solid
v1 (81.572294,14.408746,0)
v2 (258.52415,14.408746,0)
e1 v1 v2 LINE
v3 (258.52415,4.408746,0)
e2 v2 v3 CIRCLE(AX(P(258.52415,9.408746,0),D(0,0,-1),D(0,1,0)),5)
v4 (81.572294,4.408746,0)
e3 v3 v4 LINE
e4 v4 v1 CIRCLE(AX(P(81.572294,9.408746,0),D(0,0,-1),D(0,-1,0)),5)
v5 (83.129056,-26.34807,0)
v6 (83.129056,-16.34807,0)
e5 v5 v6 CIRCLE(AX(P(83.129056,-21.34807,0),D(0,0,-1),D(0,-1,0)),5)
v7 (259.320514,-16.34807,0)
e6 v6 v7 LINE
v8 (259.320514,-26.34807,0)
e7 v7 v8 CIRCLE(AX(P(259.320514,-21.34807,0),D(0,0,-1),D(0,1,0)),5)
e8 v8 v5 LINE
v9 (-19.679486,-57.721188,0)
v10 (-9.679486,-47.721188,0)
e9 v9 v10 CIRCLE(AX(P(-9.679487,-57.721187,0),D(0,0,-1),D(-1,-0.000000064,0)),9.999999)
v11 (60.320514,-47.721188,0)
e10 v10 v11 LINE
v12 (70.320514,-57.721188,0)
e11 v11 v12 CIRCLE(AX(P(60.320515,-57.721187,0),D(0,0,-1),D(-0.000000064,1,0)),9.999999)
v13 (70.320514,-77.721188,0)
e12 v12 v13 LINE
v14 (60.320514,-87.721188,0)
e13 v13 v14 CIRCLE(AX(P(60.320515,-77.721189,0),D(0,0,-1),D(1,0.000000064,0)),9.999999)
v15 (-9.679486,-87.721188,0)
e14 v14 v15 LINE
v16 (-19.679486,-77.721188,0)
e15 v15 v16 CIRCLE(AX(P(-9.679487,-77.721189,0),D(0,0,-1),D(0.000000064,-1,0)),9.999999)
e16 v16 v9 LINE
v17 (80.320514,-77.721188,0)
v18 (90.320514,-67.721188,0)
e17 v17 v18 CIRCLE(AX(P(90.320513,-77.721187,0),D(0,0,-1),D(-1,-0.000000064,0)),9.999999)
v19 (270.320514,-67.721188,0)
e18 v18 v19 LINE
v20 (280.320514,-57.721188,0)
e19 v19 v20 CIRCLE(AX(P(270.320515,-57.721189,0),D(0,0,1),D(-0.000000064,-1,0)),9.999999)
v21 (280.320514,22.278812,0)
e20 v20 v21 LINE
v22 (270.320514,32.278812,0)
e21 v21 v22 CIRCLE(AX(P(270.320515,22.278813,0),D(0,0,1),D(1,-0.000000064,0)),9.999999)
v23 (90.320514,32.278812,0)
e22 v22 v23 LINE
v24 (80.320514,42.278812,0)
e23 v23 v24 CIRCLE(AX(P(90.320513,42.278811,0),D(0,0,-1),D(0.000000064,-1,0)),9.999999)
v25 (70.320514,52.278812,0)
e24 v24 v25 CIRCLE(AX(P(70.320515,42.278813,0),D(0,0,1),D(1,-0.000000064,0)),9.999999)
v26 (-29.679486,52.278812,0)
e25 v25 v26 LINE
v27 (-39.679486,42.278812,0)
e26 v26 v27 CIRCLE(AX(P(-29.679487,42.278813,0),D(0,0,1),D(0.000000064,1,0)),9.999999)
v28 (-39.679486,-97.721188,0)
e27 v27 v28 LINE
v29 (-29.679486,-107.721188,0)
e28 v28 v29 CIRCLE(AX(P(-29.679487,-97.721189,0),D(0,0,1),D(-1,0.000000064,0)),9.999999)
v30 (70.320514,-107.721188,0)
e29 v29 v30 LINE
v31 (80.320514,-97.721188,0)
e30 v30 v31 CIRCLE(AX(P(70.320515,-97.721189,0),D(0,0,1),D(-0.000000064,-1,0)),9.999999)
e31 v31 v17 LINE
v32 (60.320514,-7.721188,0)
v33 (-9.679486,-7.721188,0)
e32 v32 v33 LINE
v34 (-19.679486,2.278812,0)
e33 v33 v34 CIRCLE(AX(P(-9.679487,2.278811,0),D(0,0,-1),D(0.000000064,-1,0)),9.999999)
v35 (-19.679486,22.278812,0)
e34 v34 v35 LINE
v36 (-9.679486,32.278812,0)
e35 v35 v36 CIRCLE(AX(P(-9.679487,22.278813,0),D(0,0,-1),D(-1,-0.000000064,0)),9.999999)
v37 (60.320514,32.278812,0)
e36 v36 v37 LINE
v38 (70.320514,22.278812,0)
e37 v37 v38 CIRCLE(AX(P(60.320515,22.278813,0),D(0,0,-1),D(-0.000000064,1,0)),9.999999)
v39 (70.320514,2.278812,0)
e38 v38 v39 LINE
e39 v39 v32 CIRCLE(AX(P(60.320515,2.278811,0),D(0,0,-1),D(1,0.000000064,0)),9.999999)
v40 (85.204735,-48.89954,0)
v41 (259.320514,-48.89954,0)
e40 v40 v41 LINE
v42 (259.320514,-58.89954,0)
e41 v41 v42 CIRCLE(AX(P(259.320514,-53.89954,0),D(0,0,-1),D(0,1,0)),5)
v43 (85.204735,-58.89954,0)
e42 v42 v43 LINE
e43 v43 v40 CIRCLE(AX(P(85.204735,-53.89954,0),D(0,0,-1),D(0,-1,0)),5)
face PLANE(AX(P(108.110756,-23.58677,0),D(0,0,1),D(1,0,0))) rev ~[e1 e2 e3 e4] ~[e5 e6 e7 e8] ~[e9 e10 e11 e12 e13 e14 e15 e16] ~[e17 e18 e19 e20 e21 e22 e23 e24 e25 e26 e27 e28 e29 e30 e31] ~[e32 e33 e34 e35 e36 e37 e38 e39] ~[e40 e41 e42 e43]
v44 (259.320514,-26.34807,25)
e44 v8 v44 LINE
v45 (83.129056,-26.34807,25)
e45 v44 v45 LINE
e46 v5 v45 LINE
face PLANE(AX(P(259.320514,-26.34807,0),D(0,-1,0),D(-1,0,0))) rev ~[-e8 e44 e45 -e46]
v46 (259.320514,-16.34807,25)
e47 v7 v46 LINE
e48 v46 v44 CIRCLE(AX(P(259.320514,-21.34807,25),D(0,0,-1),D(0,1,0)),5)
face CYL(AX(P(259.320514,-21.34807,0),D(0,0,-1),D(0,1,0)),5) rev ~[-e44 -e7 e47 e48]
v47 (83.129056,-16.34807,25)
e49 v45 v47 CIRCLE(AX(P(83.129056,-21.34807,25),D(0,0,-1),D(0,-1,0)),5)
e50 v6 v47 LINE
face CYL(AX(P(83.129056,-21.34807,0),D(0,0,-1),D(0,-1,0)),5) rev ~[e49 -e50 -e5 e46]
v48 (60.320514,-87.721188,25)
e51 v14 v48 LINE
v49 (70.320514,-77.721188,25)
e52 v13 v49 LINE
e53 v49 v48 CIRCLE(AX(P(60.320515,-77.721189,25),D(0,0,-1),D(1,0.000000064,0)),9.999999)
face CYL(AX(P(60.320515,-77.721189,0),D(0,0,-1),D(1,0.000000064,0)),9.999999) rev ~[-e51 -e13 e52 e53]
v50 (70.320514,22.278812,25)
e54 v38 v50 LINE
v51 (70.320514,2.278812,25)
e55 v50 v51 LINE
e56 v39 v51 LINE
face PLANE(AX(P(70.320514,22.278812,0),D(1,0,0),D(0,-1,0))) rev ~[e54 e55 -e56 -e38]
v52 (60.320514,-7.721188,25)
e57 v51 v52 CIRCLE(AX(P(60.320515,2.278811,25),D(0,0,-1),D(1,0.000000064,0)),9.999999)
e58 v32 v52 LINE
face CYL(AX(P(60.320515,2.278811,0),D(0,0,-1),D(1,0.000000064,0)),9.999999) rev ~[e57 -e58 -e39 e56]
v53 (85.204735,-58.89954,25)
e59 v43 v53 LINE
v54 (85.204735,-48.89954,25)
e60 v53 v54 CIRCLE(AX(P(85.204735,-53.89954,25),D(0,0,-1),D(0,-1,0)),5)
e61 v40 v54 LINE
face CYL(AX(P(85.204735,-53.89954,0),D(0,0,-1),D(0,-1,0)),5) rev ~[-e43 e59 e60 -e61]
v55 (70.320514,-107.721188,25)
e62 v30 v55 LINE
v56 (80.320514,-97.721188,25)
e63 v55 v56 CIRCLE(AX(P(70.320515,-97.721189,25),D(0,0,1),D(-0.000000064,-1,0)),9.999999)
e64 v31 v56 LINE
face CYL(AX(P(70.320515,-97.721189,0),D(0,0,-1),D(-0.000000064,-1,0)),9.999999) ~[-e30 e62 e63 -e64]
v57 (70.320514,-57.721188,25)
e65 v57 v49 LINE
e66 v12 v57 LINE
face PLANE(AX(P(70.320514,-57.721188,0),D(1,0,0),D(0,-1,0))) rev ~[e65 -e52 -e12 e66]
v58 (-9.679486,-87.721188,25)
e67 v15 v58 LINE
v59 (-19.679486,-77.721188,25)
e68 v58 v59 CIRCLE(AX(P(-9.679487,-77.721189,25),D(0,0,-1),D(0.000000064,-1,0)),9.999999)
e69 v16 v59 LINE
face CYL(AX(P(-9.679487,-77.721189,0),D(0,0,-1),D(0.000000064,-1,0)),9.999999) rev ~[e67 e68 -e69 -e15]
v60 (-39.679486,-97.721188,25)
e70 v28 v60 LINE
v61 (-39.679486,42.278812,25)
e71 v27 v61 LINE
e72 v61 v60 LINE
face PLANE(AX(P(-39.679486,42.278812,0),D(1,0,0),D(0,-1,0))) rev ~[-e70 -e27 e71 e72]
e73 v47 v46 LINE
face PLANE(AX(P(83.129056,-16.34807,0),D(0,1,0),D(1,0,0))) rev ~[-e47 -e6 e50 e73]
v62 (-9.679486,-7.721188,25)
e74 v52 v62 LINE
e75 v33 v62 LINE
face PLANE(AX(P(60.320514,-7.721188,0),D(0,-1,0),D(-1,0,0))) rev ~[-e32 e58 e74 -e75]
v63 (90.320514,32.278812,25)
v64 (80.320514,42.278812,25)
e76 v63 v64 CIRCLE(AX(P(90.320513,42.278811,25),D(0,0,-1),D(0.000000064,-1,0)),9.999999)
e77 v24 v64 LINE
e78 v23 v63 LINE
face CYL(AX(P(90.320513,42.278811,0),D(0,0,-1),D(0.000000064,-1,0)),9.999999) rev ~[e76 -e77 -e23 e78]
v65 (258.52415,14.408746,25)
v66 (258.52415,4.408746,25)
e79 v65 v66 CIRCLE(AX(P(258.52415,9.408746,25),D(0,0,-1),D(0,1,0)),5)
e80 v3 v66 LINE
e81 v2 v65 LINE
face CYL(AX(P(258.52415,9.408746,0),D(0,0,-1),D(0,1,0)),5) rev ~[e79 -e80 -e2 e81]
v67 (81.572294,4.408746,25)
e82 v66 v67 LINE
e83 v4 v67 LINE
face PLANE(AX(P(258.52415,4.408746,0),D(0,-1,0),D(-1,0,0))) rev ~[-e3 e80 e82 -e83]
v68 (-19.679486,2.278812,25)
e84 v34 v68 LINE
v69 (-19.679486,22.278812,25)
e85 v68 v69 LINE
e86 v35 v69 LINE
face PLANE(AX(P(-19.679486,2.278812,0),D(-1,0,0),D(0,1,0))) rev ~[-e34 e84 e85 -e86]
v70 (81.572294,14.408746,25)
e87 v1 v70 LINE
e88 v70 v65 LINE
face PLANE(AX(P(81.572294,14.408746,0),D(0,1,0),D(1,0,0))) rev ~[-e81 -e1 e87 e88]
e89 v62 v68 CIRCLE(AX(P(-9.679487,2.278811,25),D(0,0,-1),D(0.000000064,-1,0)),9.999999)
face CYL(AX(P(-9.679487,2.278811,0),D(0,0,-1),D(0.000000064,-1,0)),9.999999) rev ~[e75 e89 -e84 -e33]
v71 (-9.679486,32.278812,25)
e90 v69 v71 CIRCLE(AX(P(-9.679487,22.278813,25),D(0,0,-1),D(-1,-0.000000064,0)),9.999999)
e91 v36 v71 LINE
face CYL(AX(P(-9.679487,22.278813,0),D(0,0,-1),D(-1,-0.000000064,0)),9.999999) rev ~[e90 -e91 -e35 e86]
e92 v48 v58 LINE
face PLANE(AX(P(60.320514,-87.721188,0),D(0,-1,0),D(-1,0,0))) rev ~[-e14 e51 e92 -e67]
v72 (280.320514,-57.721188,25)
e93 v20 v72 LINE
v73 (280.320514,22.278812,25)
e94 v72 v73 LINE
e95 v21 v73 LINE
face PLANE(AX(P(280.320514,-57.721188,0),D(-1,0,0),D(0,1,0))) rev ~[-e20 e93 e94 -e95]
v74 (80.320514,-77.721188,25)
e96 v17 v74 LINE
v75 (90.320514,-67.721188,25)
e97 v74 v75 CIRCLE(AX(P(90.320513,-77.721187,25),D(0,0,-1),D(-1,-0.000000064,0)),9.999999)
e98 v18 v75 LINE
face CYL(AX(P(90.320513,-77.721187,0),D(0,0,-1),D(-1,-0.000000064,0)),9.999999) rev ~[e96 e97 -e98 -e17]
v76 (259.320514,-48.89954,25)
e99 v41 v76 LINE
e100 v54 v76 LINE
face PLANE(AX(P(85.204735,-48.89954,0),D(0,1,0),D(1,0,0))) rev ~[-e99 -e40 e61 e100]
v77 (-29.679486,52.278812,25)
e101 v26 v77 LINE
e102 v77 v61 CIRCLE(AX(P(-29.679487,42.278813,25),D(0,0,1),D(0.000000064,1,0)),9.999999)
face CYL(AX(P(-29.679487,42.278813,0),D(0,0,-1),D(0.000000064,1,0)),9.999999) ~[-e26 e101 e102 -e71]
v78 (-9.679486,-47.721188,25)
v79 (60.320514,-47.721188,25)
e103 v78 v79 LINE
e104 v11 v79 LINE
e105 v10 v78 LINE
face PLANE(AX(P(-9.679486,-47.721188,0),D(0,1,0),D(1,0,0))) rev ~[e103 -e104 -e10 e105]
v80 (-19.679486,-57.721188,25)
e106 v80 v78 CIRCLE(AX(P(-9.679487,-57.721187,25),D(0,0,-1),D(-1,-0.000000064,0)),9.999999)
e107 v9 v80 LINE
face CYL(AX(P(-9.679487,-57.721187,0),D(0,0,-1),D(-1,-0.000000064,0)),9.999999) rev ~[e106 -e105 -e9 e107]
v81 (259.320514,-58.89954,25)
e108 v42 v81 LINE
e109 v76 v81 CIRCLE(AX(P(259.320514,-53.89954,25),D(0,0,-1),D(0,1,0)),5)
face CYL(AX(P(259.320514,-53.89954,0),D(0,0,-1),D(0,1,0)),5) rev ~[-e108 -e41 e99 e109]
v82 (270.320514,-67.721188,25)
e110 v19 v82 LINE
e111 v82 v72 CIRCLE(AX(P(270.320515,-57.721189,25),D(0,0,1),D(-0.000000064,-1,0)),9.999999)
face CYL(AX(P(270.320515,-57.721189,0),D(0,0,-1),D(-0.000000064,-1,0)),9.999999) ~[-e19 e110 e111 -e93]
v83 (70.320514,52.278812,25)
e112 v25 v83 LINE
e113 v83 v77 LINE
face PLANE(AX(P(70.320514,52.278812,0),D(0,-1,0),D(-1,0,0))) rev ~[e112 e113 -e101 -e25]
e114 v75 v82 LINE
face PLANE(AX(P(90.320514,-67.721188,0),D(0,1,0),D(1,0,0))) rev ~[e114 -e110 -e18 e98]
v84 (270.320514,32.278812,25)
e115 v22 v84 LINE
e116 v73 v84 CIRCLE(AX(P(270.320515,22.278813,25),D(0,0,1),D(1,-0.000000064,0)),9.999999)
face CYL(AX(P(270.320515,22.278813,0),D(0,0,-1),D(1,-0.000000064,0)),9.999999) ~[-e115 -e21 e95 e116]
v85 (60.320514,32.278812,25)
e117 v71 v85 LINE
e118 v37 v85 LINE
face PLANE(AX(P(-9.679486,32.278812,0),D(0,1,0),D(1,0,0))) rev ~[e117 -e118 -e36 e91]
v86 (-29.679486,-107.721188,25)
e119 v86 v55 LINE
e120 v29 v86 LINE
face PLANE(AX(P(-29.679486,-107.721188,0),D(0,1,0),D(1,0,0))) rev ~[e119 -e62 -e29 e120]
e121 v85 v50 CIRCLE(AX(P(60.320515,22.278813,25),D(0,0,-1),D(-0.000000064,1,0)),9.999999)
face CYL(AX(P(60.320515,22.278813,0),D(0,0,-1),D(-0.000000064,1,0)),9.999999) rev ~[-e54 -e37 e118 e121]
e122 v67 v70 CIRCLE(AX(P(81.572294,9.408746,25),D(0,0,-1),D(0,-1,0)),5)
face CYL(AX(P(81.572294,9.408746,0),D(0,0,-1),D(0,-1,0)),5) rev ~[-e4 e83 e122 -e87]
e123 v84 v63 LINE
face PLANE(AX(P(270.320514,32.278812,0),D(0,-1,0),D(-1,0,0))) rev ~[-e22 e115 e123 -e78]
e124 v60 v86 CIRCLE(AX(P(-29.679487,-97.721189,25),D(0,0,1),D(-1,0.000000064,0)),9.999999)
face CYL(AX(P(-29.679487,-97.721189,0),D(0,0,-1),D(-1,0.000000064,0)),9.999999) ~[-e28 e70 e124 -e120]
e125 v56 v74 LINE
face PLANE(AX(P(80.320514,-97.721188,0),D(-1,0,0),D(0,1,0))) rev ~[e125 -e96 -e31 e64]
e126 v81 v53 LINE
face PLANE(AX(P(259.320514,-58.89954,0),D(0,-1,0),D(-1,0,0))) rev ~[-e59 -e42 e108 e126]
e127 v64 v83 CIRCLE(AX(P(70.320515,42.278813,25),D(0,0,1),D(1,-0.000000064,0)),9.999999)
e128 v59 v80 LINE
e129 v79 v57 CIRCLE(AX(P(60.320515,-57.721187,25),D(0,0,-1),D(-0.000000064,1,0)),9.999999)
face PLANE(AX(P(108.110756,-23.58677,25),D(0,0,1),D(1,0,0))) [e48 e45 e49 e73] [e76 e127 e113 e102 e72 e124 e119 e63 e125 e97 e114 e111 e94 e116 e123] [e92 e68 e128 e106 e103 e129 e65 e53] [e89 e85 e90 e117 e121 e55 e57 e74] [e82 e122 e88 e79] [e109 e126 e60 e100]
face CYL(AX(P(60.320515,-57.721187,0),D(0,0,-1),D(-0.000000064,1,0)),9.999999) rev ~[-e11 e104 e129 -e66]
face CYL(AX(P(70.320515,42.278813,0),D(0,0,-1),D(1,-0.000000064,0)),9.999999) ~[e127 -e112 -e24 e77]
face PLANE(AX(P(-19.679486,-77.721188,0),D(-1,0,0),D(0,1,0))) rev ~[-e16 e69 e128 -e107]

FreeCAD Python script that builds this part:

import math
import FreeCAD as App
import Part
import Sketcher

V = App.Vector

doc = App.newDocument("Part")
body = doc.addObject("PartDesign::Body", "Body")

# Sketch on XY plane
sketch1 = body.newObject("Sketcher::SketchObject", "Sketch")
sketch1.AttachmentSupport = (doc.getObject("XY_Plane"), [""])
sketch1.MapMode = "FlatFace"
sketch1.addGeometry([
    Part.ArcOfCircle(Part.Circle(V(-30, 42, 0), V(0, 0, 1), 10), math.radians(90), math.radians(180)),  # 0
    Part.LineSegment(V(-40, 42, 0), V(-40, -98, 0)),  # 1
    Part.ArcOfCircle(Part.Circle(V(-30, -98, 0), V(0, 0, 1), 10), math.radians(180), math.radians(270)),  # 2
    Part.LineSegment(V(-30, -108, 0), V(70, -108, 0)),  # 3
    Part.ArcOfCircle(Part.Circle(V(70, -98, 0), V(0, 0, 1), 10), math.radians(-90), math.radians(0)),  # 4
    Part.LineSegment(V(80, -98, 0), V(80, -78, 0)),  # 5
    Part.ArcOfCircle(Part.Circle(V(90, -78, 0), V(0, 0, 1), 10), math.radians(90), math.radians(180)),  # 6
    Part.LineSegment(V(90, -68, 0), V(270, -68, 0)),  # 7
    Part.ArcOfCircle(Part.Circle(V(270, -58, 0), V(0, 0, 1), 10), math.radians(-90), math.radians(0)),  # 8
    Part.LineSegment(V(280, -58, 0), V(280, 22, 0)),  # 9
    Part.ArcOfCircle(Part.Circle(V(270, 22, 0), V(0, 0, 1), 10), math.radians(0), math.radians(90)),  # 10
    Part.LineSegment(V(270, 32, 0), V(90, 32, 0)),  # 11
    Part.ArcOfCircle(Part.Circle(V(90, 42, 0), V(0, 0, 1), 10), math.radians(180), math.radians(270)),  # 12
    Part.ArcOfCircle(Part.Circle(V(70, 42, 0), V(0, 0, 1), 10), math.radians(0), math.radians(90)),  # 13
    Part.LineSegment(V(70, 52, 0), V(-30, 52, 0)),  # 14
    Part.LineSegment(V(-20, -78, 0), V(-20, -58, 0)),  # 15
    Part.ArcOfCircle(Part.Circle(V(-10, -58, 0), V(0, 0, 1), 10), math.radians(90), math.radians(180)),  # 16
    Part.LineSegment(V(-10, -48, 0), V(60, -48, 0)),  # 17
    Part.ArcOfCircle(Part.Circle(V(60, -58, 0), V(0, 0, 1), 10), math.radians(0), math.radians(90)),  # 18
    Part.LineSegment(V(70, -58, 0), V(70, -78, 0)),  # 19
    Part.ArcOfCircle(Part.Circle(V(60, -78, 0), V(0, 0, 1), 10), math.radians(-90), math.radians(0)),  # 20
    Part.LineSegment(V(60, -88, 0), V(-10, -88, 0)),  # 21
    Part.ArcOfCircle(Part.Circle(V(-10, -78, 0), V(0, 0, 1), 10), math.radians(180), math.radians(270)),  # 22
    Part.ArcOfCircle(Part.Circle(V(259, -54, 0), V(0, 0, 1), 5), math.radians(-90), math.radians(90)),  # 23
    Part.LineSegment(V(259, -59, 0), V(85, -59, 0)),  # 24
    Part.ArcOfCircle(Part.Circle(V(85, -54, 0), V(0, 0, 1), 5), math.radians(90), math.radians(270)),  # 25
    Part.LineSegment(V(85, -49, 0), V(259, -49, 0)),  # 26
    Part.LineSegment(V(-20, 2, 0), V(-20, 22, 0)),  # 27
    Part.ArcOfCircle(Part.Circle(V(-10, 22, 0), V(0, 0, 1), 10), math.radians(90), math.radians(180)),  # 28
    Part.LineSegment(V(-10, 32, 0), V(60, 32, 0)),  # 29
    Part.ArcOfCircle(Part.Circle(V(60, 22, 0), V(0, 0, 1), 10), math.radians(0), math.radians(90)),  # 30
    Part.LineSegment(V(70, 22, 0), V(70, 2, 0)),  # 31
    Part.ArcOfCircle(Part.Circle(V(60, 2, 0), V(0, 0, 1), 10), math.radians(-90), math.radians(0)),  # 32
    Part.LineSegment(V(60, -8, 0), V(-10, -8, 0)),  # 33
    Part.ArcOfCircle(Part.Circle(V(-10, 2, 0), V(0, 0, 1), 10), math.radians(180), math.radians(270)),  # 34
    Part.ArcOfCircle(Part.Circle(V(259, -21, 0), V(0, 0, 1), 5), math.radians(-90), math.radians(90)),  # 35
    Part.LineSegment(V(259, -26, 0), V(83, -26, 0)),  # 36
    Part.ArcOfCircle(Part.Circle(V(83, -21, 0), V(0, 0, 1), 5), math.radians(90), math.radians(270)),  # 37
    Part.LineSegment(V(83, -16, 0), V(259, -16, 0)),  # 38
    Part.ArcOfCircle(Part.Circle(V(259, 9, 0), V(0, 0, 1), 5), math.radians(-90), math.radians(90)),  # 39
    Part.LineSegment(V(259, 4, 0), V(82, 4, 0)),  # 40
    Part.ArcOfCircle(Part.Circle(V(82, 9, 0), V(0, 0, 1), 5), math.radians(90), math.radians(270)),  # 41
    Part.LineSegment(V(82, 14, 0), V(259, 14, 0)),  # 42
], False)
sketch1.addConstraint([
    Sketcher.Constraint("Tangent", 0, 2, 1, 1),
    Sketcher.Constraint("Tangent", 1, 2, 2, 1),
    Sketcher.Constraint("Tangent", 2, 2, 3, 1),
    Sketcher.Constraint("Tangent", 3, 2, 4, 1),
    Sketcher.Constraint("Tangent", 4, 2, 5, 1),
    Sketcher.Constraint("Tangent", 5, 2, 6, 2),
    Sketcher.Constraint("Tangent", 6, 1, 7, 1),
    Sketcher.Constraint("Tangent", 7, 2, 8, 1),
    Sketcher.Constraint("Tangent", 8, 2, 9, 1),
    Sketcher.Constraint("Tangent", 9, 2, 10, 1),
    Sketcher.Constraint("Tangent", 10, 2, 11, 1),
    Sketcher.Constraint("Tangent", 11, 2, 12, 2),
    Sketcher.Constraint("Tangent", 12, 1, 13, 1),
    Sketcher.Constraint("Tangent", 13, 2, 14, 1),
    Sketcher.Constraint("Tangent", 14, 2, 0, 1),
    Sketcher.Constraint("Tangent", 15, 2, 16, 2),
    Sketcher.Constraint("Tangent", 16, 1, 17, 1),
    Sketcher.Constraint("Tangent", 17, 2, 18, 2),
    Sketcher.Constraint("Tangent", 18, 1, 19, 1),
    Sketcher.Constraint("Tangent", 19, 2, 20, 2),
    Sketcher.Constraint("Tangent", 20, 1, 21, 1),
    Sketcher.Constraint("Tangent", 21, 2, 22, 2),
    Sketcher.Constraint("Tangent", 22, 1, 15, 1),
    Sketcher.Constraint("Tangent", 23, 1, 24, 1),
    Sketcher.Constraint("Tangent", 24, 2, 25, 2),
    Sketcher.Constraint("Tangent", 25, 1, 26, 1),
    Sketcher.Constraint("Tangent", 26, 2, 23, 2),
    Sketcher.Constraint("Tangent", 27, 2, 28, 2),
    Sketcher.Constraint("Tangent", 28, 1, 29, 1),
    Sketcher.Constraint("Tangent", 29, 2, 30, 2),
    Sketcher.Constraint("Tangent", 30, 1, 31, 1),
    Sketcher.Constraint("Tangent", 31, 2, 32, 2),
    Sketcher.Constraint("Tangent", 32, 1, 33, 1),
    Sketcher.Constraint("Tangent", 33, 2, 34, 2),
    Sketcher.Constraint("Tangent", 34, 1, 27, 1),
    Sketcher.Constraint("Tangent", 35, 1, 36, 1),
    Sketcher.Constraint("Tangent", 36, 2, 37, 2),
    Sketcher.Constraint("Tangent", 37, 1, 38, 1),
    Sketcher.Constraint("Tangent", 38, 2, 35, 2),
    Sketcher.Constraint("Tangent", 39, 1, 40, 1),
    Sketcher.Constraint("Tangent", 40, 2, 41, 2),
    Sketcher.Constraint("Tangent", 41, 1, 42, 1),
    Sketcher.Constraint("Tangent", 42, 2, 39, 2),
    Sketcher.Constraint("Vertical", 1),
    Sketcher.Constraint("Horizontal", 3),
    Sketcher.Constraint("Vertical", 5),
    Sketcher.Constraint("Horizontal", 7),
    Sketcher.Constraint("Vertical", 9),
    Sketcher.Constraint("Horizontal", 11),
    Sketcher.Constraint("Horizontal", 14),
    Sketcher.Constraint("Vertical", 15),
    Sketcher.Constraint("Horizontal", 17),
    Sketcher.Constraint("Vertical", 19),
    Sketcher.Constraint("Horizontal", 21),
    Sketcher.Constraint("Horizontal", 24),
    Sketcher.Constraint("Horizontal", 26),
    Sketcher.Constraint("Vertical", 27),
    Sketcher.Constraint("Horizontal", 29),
    Sketcher.Constraint("Vertical", 31),
    Sketcher.Constraint("Horizontal", 33),
    Sketcher.Constraint("Horizontal", 36),
    Sketcher.Constraint("Horizontal", 38),
    Sketcher.Constraint("Horizontal", 40),
    Sketcher.Constraint("Horizontal", 42),
    Sketcher.Constraint("Equal", 0, 2),
    Sketcher.Constraint("Equal", 2, 4),
    Sketcher.Constraint("Equal", 4, 6),
    Sketcher.Constraint("Equal", 6, 8),
    Sketcher.Constraint("Equal", 8, 10),
    Sketcher.Constraint("Equal", 10, 12),
    Sketcher.Constraint("Equal", 12, 13),
    Sketcher.Constraint("Equal", 13, 16),
    Sketcher.Constraint("Equal", 16, 18),
    Sketcher.Constraint("Equal", 18, 20),
    Sketcher.Constraint("Equal", 20, 22),
    Sketcher.Constraint("Equal", 22, 28),
    Sketcher.Constraint("Equal", 28, 30),
    Sketcher.Constraint("Equal", 30, 32),
    Sketcher.Constraint("Equal", 32, 34),
    Sketcher.Constraint("Equal", 25, 35),
    Sketcher.Constraint("Equal", 37, 39),
    Sketcher.Constraint("Horizontal", 0, 3, 12, 3),
    Sketcher.Constraint("Horizontal", 8, 3, 16, 3),
    Sketcher.Constraint("Horizontal", 6, 3, 20, 3),
    Sketcher.Constraint("Horizontal", 10, 3, 28, 3),
    Sketcher.Constraint("Vertical", 6, 3, 12, 3),
    Sketcher.Constraint("Vertical", 22, 3, 28, 3),
    Sketcher.Constraint("Vertical", 20, 3, 30, 3),
    Sketcher.Constraint("Vertical", 23, 3, 35, 3),
    Sketcher.Constraint("Vertical", 13, 2, 18, 1),
    Sketcher.Constraint("Equal", 5, 15),
    Sketcher.Constraint("Equal", 19, 27),
    Sketcher.Constraint("Radius", 0, 9.999999),
    Sketcher.Constraint("Radius", 23, 5.0),
    Sketcher.Constraint("DistanceX", 3, 1, 3, 2, 100.0),
    Sketcher.Constraint("DistanceX", 7, 1, 7, 2, 180.0),
    Sketcher.Constraint("DistanceX", 17, 1, 17, 2, 70.0),
    Sketcher.Constraint("DistanceY", 1, 2, 1, 1, 140.0),
    Sketcher.Constraint("DistanceX", 24, 2, 24, 1, 174.115779),
    Sketcher.Constraint("DistanceX", 36, 2, 36, 1, 176.191458),
    Sketcher.Constraint("DistanceX", 40, 2, 40, 1, 176.951856),
    Sketcher.Constraint("DistanceY", 2, 3, -1, 1, 97.721189),
    Sketcher.Constraint("DistanceY", 23, 3, -1, 1, 53.89954),
    Sketcher.Constraint("DistanceY", 35, 3, -1, 1, 21.34807),
    Sketcher.Constraint("DistanceX", -1, 1, 39, 3, 258.52415),
    Sketcher.Constraint("DistanceX", 0, 3, -1, 1, 29.679487),
    Sketcher.Constraint("DistanceX", -1, 1, 23, 3, 259.320514),
    Sketcher.Constraint("DistanceY", -1, 1, 39, 3, 9.408746),
])
pad1 = body.newObject("PartDesign::Pad", "Pad")
pad1.Profile = sketch1
pad1.Length = 25

doc.recompute()
